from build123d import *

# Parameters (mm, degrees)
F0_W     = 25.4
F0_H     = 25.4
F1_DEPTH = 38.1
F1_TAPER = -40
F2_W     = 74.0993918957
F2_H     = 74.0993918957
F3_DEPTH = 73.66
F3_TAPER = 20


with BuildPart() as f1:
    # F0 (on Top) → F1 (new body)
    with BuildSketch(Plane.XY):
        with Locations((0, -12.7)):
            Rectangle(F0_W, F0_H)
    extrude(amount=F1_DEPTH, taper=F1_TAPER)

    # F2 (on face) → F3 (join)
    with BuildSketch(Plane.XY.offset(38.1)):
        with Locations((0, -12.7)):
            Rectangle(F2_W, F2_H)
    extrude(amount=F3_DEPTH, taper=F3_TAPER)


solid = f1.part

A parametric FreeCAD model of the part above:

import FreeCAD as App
import Part
import Sketcher
from FreeCAD import Vector
Q = App.Units.Quantity

doc = App.newDocument("Part")
params = doc.addObject("Spreadsheet::Sheet", "Params")
for row, (alias, value) in enumerate([
    ("sketch1_width", "1 in"),
    ("pad1_length", "1.5 in"),
    ("pad1_taper", "40 deg"),
    ("pad2_length", "2.9 in"),
    ("pad2_taper", "-20 deg"),
], start=1):
    params.set(f"A{row}", alias)
    params.set(f"B{row}", "=" + value)
    params.setAlias(f"B{row}", alias)

body = doc.addObject("PartDesign::Body", "Body")

# Sketch on XY plane
sketch1 = body.newObject("Sketcher::SketchObject", "Sketch")
sketch1.AttachmentSupport = (doc.getObject("XY_Plane"), [""])
sketch1.MapMode = "FlatFace"
sketch1.addGeometry([
    Part.LineSegment(Vector(-13, 0, 0), Vector(-13, -25, 0)),
    Part.LineSegment(Vector(-13, -25, 0), Vector(13, -25, 0)),
    Part.LineSegment(Vector(13, -25, 0), Vector(13, 0, 0)),
    Part.LineSegment(Vector(13, 0, 0), Vector(-13, 0, 0)),
], False)
sketch1.addConstraint([
    Sketcher.Constraint("Coincident", 0, 2, 1, 1),
    Sketcher.Constraint("Coincident", 1, 2, 2, 1),
    Sketcher.Constraint("Coincident", 2, 2, 3, 1),
    Sketcher.Constraint("Coincident", 3, 2, 0, 1),
    Sketcher.Constraint("Vertical", 0),
    Sketcher.Constraint("Horizontal", 1),
    Sketcher.Constraint("Vertical", 2),
    Sketcher.Constraint("Horizontal", 3),
    Sketcher.Constraint("Symmetric", 2, 2, 3, 2, -1, 1),
    Sketcher.Constraint("Equal", 3, 0),
    Sketcher.Constraint("DistanceX", 1, 1, 1, 2, Q("1 in")),
])
sketch1.setExpression("Constraints[10]", "Params.sketch1_width")
pad1 = body.newObject("PartDesign::Pad", "Pad")
pad1.Profile = sketch1
pad1.setExpression("Length", "Params.pad1_length")
pad1.setExpression("TaperAngle", "Params.pad1_taper")

# Sketch on XY plane
sketch2 = body.newObject("Sketcher::SketchObject", "Sketch001")
sketch2.AttachmentSupport = (doc.getObject("XY_Plane"), [""])
sketch2.MapMode = "FlatFace"
sketch2.AttachmentOffset = App.Placement(Vector(0, 0, 1.5 * 25.4), App.Rotation())
sketch2.addGeometry([
    Part.LineSegment(Vector(-37, 24, 0), Vector(-37, -50, 0)),
    Part.LineSegment(Vector(-37, -50, 0), Vector(37, -50, 0)),
    Part.LineSegment(Vector(37, -50, 0), Vector(37, 24, 0)),
    Part.LineSegment(Vector(37, 24, 0), Vector(-37, 24, 0)),
], False)
sketch2.addConstraint([
    Sketcher.Constraint("Coincident", 0, 2, 1, 1),
    Sketcher.Constraint("Coincident", 1, 2, 2, 1),
    Sketcher.Constraint("Coincident", 2, 2, 3, 1),
    Sketcher.Constraint("Coincident", 3, 2, 0, 1),
    Sketcher.Constraint("Vertical", 0),
    Sketcher.Constraint("Horizontal", 1),
    Sketcher.Constraint("Vertical", 2),
    Sketcher.Constraint("Horizontal", 3),
    Sketcher.Constraint("Equal", 3, 0),
    Sketcher.Constraint("DistanceX", 1, 1, 1, 2, Q("74.099392 mm")),
    Sketcher.Constraint("DistanceX", 0, 2, -1, 1, Q("37.049696 mm")),
    Sketcher.Constraint("DistanceY", 0, 2, -1, 1, Q("49.749696 mm")),
])
pad2 = body.newObject("PartDesign::Pad", "Pad001")
pad2.Profile = sketch2
pad2.setExpression("Length", "Params.pad2_length")
pad2.setExpression("TaperAngle", "Params.pad2_taper")

doc.recompute()
